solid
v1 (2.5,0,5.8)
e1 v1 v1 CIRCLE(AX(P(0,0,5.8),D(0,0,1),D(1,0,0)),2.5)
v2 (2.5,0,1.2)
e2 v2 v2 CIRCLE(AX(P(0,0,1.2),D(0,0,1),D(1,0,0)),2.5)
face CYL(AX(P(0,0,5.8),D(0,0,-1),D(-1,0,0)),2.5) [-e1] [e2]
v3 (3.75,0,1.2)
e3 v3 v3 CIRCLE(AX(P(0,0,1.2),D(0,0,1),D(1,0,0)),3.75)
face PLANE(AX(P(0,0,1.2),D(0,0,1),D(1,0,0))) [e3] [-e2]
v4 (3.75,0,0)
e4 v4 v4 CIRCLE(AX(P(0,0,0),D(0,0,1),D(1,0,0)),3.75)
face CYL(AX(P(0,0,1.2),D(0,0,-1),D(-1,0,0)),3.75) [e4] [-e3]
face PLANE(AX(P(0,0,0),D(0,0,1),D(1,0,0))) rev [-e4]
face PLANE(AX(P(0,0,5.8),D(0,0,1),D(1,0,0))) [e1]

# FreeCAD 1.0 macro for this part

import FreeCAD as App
import Part
import Sketcher
from FreeCAD import Vector

doc = App.newDocument("Part")
body = doc.addObject("PartDesign::Body", "Body")

sketch1 = doc.addObject("Sketcher::SketchObject", "Sketch")
body.addObject(sketch1)
sketch1.AttachmentSupport = (doc.XY_Plane, [""])
sketch1.MapMode = "FlatFace"
sketch1.addGeometry(Part.Circle(Vector(0, 0, 0), Vector(0, 0, 1), 2.5), False)
sketch1.addConstraint([
    Sketcher.Constraint("Coincident", 0, 3, -1, 1),
    Sketcher.Constraint("Diameter", 0, 5.0),
])
pad1 = doc.addObject("PartDesign::Pad", "Pad")
body.addObject(pad1)
pad1.Profile = sketch1
pad1.Length = 5.8

sketch2 = doc.addObject("Sketcher::SketchObject", "Sketch001")
body.addObject(sketch2)
sketch2.AttachmentSupport = (doc.XY_Plane, [""])
sketch2.MapMode = "FlatFace"
sketch2.addGeometry(Part.Circle(Vector(0, 0, 0), Vector(0, 0, 1), 3.8), False)
sketch2.addConstraint([
    Sketcher.Constraint("Coincident", 0, 3, -1, 1),
    Sketcher.Constraint("Diameter", 0, 7.5),
])
pad2 = doc.addObject("PartDesign::Pad", "Pad001")
body.addObject(pad2)
pad2.Profile = sketch2
pad2.Length = 1.2

doc.recompute()
